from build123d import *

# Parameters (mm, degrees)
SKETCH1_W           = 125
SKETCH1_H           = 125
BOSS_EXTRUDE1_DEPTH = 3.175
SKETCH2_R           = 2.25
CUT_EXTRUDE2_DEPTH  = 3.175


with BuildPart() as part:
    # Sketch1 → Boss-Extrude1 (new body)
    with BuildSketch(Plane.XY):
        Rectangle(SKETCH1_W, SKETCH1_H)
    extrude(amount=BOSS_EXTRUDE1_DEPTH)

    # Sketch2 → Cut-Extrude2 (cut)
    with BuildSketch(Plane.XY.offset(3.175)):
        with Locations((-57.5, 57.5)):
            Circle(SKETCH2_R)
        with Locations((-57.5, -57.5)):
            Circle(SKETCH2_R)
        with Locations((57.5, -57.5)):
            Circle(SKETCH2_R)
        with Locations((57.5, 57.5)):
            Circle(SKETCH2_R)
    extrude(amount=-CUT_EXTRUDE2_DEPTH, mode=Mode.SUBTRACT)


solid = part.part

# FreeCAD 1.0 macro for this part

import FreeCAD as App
import Part
import Sketcher

doc = App.newDocument("Part")
body = doc.addObject("PartDesign::Body", "Body")

# Sketch on XY plane
sketch1 = doc.addObject("Sketcher::SketchObject", "Sketch")
body.addObject(sketch1)
sketch1.AttachmentSupport = (doc.XY_Plane, [""])
sketch1.MapMode = "FlatFace"
sketch1.addGeometry(Part.LineSegment(App.Vector(-62, 62, 0), App.Vector(-62, -62, 0)), False)
sketch1.addGeometry(Part.LineSegment(App.Vector(-62, -62, 0), App.Vector(62, -62, 0)), False)
sketch1.addGeometry(Part.LineSegment(App.Vector(62, -62, 0), App.Vector(62, 62, 0)), False)
sketch1.addGeometry(Part.LineSegment(App.Vector(62, 62, 0), App.Vector(-62, 62, 0)), False)
sketch1.addConstraint(Sketcher.Constraint("Coincident", 0, 2, 1, 1))
sketch1.addConstraint(Sketcher.Constraint("Coincident", 1, 2, 2, 1))
sketch1.addConstraint(Sketcher.Constraint("Coincident", 2, 2, 3, 1))
sketch1.addConstraint(Sketcher.Constraint("Coincident", 3, 2, 0, 1))
sketch1.addConstraint(Sketcher.Constraint("Vertical", 0))
sketch1.addConstraint(Sketcher.Constraint("Horizontal", 1))
sketch1.addConstraint(Sketcher.Constraint("Vertical", 2))
sketch1.addConstraint(Sketcher.Constraint("Horizontal", 3))
sketch1.addConstraint(Sketcher.Constraint("Symmetric", 0, 2, 2, 2, -1, 1))
sketch1.addConstraint(Sketcher.Constraint("Equal", 3, 0))
sketch1.addConstraint(Sketcher.Constraint("DistanceX", 1, 1, 1, 2, 125.0))
pad1 = doc.addObject("PartDesign::Pad", "Pad")
body.addObject(pad1)
pad1.Profile = sketch1
pad1.Length = 3.175

# Sketch on XY plane
sketch2 = doc.addObject("Sketcher::SketchObject", "Sketch001")
body.addObject(sketch2)
sketch2.AttachmentSupport = (doc.XY_Plane, [""])
sketch2.MapMode = "FlatFace"
sketch2.AttachmentOffset = App.Placement(App.Vector(0, 0, 3.175), App.Rotation())
sketch2.addGeometry(Part.Circle(App.Vector(-57.5, 57.5, 0), App.Vector(0, 0, 1), 2.2), False)
sketch2.addGeometry(Part.Circle(App.Vector(-57.5, -57.5, 0), App.Vector(0, 0, 1), 2.2), False)
sketch2.addGeometry(Part.Circle(App.Vector(57.5, -57.5, 0), App.Vector(0, 0, 1), 2.2), False)
sketch2.addGeometry(Part.Circle(App.Vector(57.5, 57.5, 0), App.Vector(0, 0, 1), 2.2), False)
sketch2.addConstraint(Sketcher.Constraint("Equal", 0, 1))
sketch2.addConstraint(Sketcher.Constraint("Equal", 1, 2))
sketch2.addConstraint(Sketcher.Constraint("Equal", 2, 3))
sketch2.addConstraint(Sketcher.Constraint("Symmetric", 0, 3, 2, 3, -1, 1))
sketch2.addConstraint(Sketcher.Constraint("Symmetric", 1, 3, 3, 3, -1, 1))
sketch2.addConstraint(Sketcher.Constraint("Symmetric", 1, 3, 2, 3, -2))
sketch2.addConstraint(Sketcher.Constraint("Diameter", 0, 4.5))
sketch2.addConstraint(Sketcher.Constraint("DistanceY", 1, 3, 0, 3, 115.0))
sketch2.addConstraint(Sketcher.Constraint("DistanceX", 1, 3, 2, 3, 115.0))
pocket1 = doc.addObject("PartDesign::Pocket", "Pocket")
body.addObject(pocket1)
pocket1.Profile = sketch2
pocket1.Length = 3.175

doc.recompute()
